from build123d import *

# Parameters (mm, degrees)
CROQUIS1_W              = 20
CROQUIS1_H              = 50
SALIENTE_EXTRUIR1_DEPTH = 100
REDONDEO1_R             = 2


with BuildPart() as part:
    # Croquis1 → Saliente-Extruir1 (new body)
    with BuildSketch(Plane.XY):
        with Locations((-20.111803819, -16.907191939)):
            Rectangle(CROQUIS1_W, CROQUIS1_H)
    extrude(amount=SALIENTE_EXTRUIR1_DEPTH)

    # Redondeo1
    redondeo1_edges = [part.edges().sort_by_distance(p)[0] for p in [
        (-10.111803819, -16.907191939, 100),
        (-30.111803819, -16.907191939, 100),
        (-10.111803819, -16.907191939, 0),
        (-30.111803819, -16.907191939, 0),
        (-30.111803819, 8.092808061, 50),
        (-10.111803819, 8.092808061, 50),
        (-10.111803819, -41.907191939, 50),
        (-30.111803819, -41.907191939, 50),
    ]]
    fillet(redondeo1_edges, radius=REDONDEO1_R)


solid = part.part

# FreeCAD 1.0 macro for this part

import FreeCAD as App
import Part
import Sketcher
from FreeCAD import Vector
Q = App.Units.Quantity


def edges_at(feature, points):
    """Names of the edges that pass closest to the given points."""
    edges = feature.Shape.Edges
    near = lambda p: min(range(len(edges)), key=lambda i: edges[i].distToShape(Part.Vertex(*p))[0])
    return sorted({f"Edge{near(p) + 1}" for p in points})

doc = App.newDocument("Part")
body = doc.addObject("PartDesign::Body", "Body")

sketch1 = doc.addObject("Sketcher::SketchObject", "Sketch")
body.addObject(sketch1)
sketch1.AttachmentSupport = (doc.XY_Plane, [""])
sketch1.MapMode = "FlatFace"
sketch1.addGeometry([
    Part.LineSegment(Vector(-30.111804, 8.092808, 0), Vector(-30.111804, -41.907192, 0)),
    Part.LineSegment(Vector(-30.111804, -41.907192, 0), Vector(-10.111804, -41.907192, 0)),
    Part.LineSegment(Vector(-10.111804, -41.907192, 0), Vector(-10.111804, 8.092808, 0)),
    Part.LineSegment(Vector(-10.111804, 8.092808, 0), Vector(-30.111804, 8.092808, 0)),
], False)
sketch1.addConstraint([
    Sketcher.Constraint("Coincident", 0, 2, 1, 1),
    Sketcher.Constraint("Coincident", 1, 2, 2, 1),
    Sketcher.Constraint("Coincident", 2, 2, 3, 1),
    Sketcher.Constraint("Coincident", 3, 2, 0, 1),
    Sketcher.Constraint("Vertical", 0),
    Sketcher.Constraint("Horizontal", 1),
    Sketcher.Constraint("Vertical", 2),
    Sketcher.Constraint("Horizontal", 3),
    Sketcher.Constraint("DistanceX", 1, 1, 1, 2, Q("20 mm")),
    Sketcher.Constraint("DistanceY", 0, 2, 0, 1, Q("50 mm")),
    Sketcher.Constraint("DistanceY", 0, 2, -1, 1, Q("41.907192 mm")),
    Sketcher.Constraint("DistanceX", 0, 2, -1, 1, Q("30.111804 mm")),
])
pad1 = doc.addObject("PartDesign::Pad", "Pad")
body.addObject(pad1)
pad1.Profile = sketch1
pad1.Length = 100
doc.recompute()

fillet = doc.addObject("PartDesign::Fillet", "Fillet")
body.addObject(fillet)
fillet.Base = (pad1, edges_at(pad1, [
    (-10.112, -16.907, 100),
    (-30.112, -16.907, 100),
    (-10.112, -16.907, 0),
    (-30.112, -16.907, 0),
    (-30.112, 8.093, 50),
    (-10.112, 8.093, 50),
    (-10.112, -41.907, 50),
    (-30.112, -41.907, 50),
]))
fillet.Radius = 2

doc.recompute()
